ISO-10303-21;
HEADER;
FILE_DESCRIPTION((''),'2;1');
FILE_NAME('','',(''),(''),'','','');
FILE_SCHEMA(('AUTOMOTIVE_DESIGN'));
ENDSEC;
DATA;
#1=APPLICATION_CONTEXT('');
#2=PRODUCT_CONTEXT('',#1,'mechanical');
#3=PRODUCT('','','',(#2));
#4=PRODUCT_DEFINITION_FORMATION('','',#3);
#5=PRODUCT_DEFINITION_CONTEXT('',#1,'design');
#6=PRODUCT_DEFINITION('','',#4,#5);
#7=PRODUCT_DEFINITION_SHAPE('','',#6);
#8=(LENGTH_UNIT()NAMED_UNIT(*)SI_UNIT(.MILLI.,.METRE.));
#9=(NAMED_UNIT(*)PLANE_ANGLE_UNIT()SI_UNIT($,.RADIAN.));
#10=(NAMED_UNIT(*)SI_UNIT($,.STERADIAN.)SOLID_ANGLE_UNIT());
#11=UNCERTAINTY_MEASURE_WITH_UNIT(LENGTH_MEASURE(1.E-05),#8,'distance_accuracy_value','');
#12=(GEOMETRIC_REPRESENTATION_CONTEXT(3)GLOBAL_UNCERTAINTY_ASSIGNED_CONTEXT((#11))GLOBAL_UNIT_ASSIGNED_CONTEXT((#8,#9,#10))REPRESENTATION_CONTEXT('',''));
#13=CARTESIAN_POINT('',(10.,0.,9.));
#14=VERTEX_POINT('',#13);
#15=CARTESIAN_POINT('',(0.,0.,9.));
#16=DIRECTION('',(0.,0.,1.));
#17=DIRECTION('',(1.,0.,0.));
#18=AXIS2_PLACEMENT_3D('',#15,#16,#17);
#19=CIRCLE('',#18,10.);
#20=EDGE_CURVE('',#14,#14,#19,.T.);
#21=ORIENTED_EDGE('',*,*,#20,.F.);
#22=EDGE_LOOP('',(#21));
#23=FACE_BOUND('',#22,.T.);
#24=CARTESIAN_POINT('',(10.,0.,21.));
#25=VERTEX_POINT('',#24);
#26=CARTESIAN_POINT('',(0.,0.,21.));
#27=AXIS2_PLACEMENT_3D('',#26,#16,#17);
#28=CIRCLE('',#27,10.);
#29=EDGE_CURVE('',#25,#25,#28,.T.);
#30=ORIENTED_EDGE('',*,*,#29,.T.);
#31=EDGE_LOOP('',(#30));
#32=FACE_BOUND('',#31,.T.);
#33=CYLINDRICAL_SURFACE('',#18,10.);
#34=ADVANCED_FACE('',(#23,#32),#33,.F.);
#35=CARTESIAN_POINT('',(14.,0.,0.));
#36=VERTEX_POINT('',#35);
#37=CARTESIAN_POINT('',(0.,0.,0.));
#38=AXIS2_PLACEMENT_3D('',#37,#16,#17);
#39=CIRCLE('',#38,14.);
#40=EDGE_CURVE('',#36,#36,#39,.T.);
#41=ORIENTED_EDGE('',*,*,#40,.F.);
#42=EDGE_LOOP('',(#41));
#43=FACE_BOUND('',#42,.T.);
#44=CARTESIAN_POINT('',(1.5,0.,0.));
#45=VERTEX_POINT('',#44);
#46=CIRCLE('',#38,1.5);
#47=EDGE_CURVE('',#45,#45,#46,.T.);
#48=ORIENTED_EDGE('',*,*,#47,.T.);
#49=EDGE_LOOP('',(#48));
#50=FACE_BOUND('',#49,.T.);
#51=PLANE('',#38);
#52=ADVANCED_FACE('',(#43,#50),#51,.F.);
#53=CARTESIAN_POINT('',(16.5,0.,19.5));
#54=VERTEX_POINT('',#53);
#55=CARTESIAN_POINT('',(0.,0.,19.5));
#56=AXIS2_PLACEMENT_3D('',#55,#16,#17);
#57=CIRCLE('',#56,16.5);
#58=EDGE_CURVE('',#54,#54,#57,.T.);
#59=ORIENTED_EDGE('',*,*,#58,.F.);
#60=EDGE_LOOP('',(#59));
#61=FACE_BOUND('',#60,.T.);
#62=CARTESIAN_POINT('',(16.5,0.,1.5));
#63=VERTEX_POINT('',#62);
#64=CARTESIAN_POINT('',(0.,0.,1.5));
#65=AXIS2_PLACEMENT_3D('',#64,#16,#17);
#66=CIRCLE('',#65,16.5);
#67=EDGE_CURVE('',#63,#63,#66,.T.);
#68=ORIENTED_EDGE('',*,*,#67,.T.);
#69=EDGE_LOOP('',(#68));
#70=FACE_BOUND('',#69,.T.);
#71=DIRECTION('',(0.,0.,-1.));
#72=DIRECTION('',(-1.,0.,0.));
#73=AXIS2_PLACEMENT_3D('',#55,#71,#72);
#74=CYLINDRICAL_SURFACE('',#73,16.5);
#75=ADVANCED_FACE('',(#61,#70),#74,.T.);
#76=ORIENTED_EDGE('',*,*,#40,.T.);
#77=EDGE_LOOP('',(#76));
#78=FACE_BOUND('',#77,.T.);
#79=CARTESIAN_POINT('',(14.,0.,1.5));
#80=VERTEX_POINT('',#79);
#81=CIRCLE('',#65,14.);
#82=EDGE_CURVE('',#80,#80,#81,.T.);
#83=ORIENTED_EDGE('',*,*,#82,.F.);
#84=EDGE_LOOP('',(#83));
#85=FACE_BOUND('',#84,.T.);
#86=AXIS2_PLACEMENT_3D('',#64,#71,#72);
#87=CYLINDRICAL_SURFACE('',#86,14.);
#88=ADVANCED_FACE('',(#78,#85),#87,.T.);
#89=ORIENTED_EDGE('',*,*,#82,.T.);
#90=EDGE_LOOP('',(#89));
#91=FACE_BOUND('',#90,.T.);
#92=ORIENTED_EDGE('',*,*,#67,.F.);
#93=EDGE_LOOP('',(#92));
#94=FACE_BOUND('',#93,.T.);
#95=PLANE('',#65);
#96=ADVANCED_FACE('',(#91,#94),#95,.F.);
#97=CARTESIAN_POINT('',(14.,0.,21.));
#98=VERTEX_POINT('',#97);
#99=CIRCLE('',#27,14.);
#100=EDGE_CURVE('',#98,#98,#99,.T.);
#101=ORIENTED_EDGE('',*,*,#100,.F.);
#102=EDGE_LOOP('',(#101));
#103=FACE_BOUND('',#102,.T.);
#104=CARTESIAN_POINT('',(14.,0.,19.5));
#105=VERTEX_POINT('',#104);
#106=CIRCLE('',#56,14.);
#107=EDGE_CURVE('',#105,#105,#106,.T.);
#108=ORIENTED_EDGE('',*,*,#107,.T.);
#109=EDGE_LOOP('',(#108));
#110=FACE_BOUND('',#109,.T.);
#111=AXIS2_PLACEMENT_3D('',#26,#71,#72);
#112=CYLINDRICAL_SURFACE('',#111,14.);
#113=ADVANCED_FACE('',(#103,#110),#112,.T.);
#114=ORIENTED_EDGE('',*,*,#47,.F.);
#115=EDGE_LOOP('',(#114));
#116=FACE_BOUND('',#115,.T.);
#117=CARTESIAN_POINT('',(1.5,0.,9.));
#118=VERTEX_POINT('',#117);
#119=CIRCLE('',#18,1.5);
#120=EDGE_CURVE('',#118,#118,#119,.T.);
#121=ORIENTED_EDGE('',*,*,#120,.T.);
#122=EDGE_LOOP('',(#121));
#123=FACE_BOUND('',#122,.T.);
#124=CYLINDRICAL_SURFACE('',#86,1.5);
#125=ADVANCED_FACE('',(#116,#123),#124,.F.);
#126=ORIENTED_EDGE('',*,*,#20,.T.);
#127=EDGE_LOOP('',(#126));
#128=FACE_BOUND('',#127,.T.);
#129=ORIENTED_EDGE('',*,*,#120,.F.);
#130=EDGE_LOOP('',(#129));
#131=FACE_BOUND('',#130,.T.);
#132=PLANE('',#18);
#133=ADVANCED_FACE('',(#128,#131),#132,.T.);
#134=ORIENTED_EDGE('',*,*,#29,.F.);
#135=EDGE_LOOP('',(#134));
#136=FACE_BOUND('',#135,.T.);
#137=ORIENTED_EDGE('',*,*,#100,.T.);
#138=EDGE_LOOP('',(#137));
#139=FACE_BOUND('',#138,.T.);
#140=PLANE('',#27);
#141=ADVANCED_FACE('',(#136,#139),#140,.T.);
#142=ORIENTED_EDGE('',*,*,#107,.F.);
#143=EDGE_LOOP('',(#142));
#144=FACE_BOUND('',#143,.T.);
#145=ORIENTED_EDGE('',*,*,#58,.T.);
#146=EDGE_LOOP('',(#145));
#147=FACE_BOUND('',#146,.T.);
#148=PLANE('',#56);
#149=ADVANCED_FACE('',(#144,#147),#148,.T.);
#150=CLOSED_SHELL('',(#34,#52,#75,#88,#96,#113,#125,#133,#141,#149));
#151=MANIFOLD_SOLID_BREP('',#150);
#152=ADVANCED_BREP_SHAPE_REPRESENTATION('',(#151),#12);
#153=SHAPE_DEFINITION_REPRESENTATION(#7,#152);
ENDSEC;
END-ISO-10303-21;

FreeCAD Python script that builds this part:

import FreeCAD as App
import Part
import Sketcher

V = App.Vector

doc = App.newDocument("Part")
body = doc.addObject("PartDesign::Body", "Body")

# Sketch on XY plane
sketch1 = doc.addObject("Sketcher::SketchObject", "Sketch")
body.addObject(sketch1)
sketch1.AttachmentSupport = (doc.XY_Plane, [""])
sketch1.MapMode = "FlatFace"
sketch1.addGeometry(Part.Circle(V(0, 0, 0), V(0, 0, 1), 14), False)
sketch1.addGeometry(Part.Circle(V(0, 0, 0), V(0, 0, 1), 1.5), False)
sketch1.addConstraint(Sketcher.Constraint("Coincident", 0, 3, -1, 1))
sketch1.addConstraint(Sketcher.Constraint("Coincident", 1, 3, -1, 1))
sketch1.addConstraint(Sketcher.Constraint("Diameter", 0, 28.0))
sketch1.addConstraint(Sketcher.Constraint("Diameter", 1, 3.0))
pad1 = doc.addObject("PartDesign::Pad", "Pad")
body.addObject(pad1)
pad1.Profile = sketch1
pad1.Length = 1.5

# Sketch on XY plane
sketch2 = doc.addObject("Sketcher::SketchObject", "Sketch001")
body.addObject(sketch2)
sketch2.AttachmentSupport = (doc.XY_Plane, [""])
sketch2.MapMode = "FlatFace"
sketch2.AttachmentOffset = App.Placement(V(0, 0, 1.5), App.Rotation())
sketch2.addGeometry(Part.Circle(V(0, 0, 0), V(0, 0, 1), 10.5), False)
sketch2.addGeometry(Part.Circle(V(0, 0, 0), V(0, 0, 1), 1.5), False)
sketch2.addConstraint(Sketcher.Constraint("Coincident", 0, 3, -1, 1))
sketch2.addConstraint(Sketcher.Constraint("Coincident", 1, 3, -1, 1))
sketch2.addConstraint(Sketcher.Constraint("Diameter", 0, 21.0))
sketch2.addConstraint(Sketcher.Constraint("Diameter", 1, 3.0))
pad2 = doc.addObject("PartDesign::Pad", "Pad001")
body.addObject(pad2)
pad2.Profile = sketch2
pad2.Length = 18

# Sketch on XY plane
sketch3 = doc.addObject("Sketcher::SketchObject", "Sketch002")
body.addObject(sketch3)
sketch3.AttachmentSupport = (doc.XY_Plane, [""])
sketch3.MapMode = "FlatFace"
sketch3.AttachmentOffset = App.Placement(V(0, 0, 19.5), App.Rotation())
sketch3.addGeometry(Part.Circle(V(0, 0, 0), V(0, 0, 1), 14), False)
sketch3.addGeometry(Part.Circle(V(0, 0, 0), V(0, 0, 1), 1.5), False)
sketch3.addConstraint(Sketcher.Constraint("Coincident", 0, 3, -1, 1))
sketch3.addConstraint(Sketcher.Constraint("Coincident", 1, 3, -1, 1))
sketch3.addConstraint(Sketcher.Constraint("Diameter", 0, 28.0))
sketch3.addConstraint(Sketcher.Constraint("Diameter", 1, 3.0))
pad3 = doc.addObject("PartDesign::Pad", "Pad002")
body.addObject(pad3)
pad3.Profile = sketch3
pad3.Length = 1.5

# Sketch on XY plane
sketch4 = doc.addObject("Sketcher::SketchObject", "Sketch003")
body.addObject(sketch4)
sketch4.AttachmentSupport = (doc.XY_Plane, [""])
sketch4.MapMode = "FlatFace"
sketch4.AttachmentOffset = App.Placement(V(0, 0, 21), App.Rotation())
sketch4.addGeometry(Part.Circle(V(0, 0, 0), V(0, 0, 1), 10), False)
sketch4.addConstraint(Sketcher.Constraint("Coincident", 0, 3, -1, 1))
sketch4.addConstraint(Sketcher.Constraint("Diameter", 0, 20.0))
pocket1 = doc.addObject("PartDesign::Pocket", "Pocket")
body.addObject(pocket1)
pocket1.Profile = sketch4
pocket1.Length = 12

# Sketch on XY plane
sketch5 = doc.addObject("Sketcher::SketchObject", "Sketch004")
body.addObject(sketch5)
sketch5.AttachmentSupport = (doc.XY_Plane, [""])
sketch5.MapMode = "FlatFace"
sketch5.AttachmentOffset = App.Placement(V(0, 0, 1.5), App.Rotation())
sketch5.addGeometry(Part.Circle(V(0, 0, 0), V(0, 0, 1), 16.5), False)
sketch5.addGeometry(Part.Circle(V(0, 0, 0), V(0, 0, 1), 10.5), False)
sketch5.addConstraint(Sketcher.Constraint("Coincident", 0, 3, -1, 1))
sketch5.addConstraint(Sketcher.Constraint("Coincident", 1, 3, -1, 1))
sketch5.addConstraint(Sketcher.Constraint("Diameter", 0, 33.0))
sketch5.addConstraint(Sketcher.Constraint("Diameter", 1, 21.0))
pad4 = doc.addObject("PartDesign::Pad", "Pad003")
body.addObject(pad4)
pad4.Profile = sketch5
pad4.Length = 18

doc.recompute()
